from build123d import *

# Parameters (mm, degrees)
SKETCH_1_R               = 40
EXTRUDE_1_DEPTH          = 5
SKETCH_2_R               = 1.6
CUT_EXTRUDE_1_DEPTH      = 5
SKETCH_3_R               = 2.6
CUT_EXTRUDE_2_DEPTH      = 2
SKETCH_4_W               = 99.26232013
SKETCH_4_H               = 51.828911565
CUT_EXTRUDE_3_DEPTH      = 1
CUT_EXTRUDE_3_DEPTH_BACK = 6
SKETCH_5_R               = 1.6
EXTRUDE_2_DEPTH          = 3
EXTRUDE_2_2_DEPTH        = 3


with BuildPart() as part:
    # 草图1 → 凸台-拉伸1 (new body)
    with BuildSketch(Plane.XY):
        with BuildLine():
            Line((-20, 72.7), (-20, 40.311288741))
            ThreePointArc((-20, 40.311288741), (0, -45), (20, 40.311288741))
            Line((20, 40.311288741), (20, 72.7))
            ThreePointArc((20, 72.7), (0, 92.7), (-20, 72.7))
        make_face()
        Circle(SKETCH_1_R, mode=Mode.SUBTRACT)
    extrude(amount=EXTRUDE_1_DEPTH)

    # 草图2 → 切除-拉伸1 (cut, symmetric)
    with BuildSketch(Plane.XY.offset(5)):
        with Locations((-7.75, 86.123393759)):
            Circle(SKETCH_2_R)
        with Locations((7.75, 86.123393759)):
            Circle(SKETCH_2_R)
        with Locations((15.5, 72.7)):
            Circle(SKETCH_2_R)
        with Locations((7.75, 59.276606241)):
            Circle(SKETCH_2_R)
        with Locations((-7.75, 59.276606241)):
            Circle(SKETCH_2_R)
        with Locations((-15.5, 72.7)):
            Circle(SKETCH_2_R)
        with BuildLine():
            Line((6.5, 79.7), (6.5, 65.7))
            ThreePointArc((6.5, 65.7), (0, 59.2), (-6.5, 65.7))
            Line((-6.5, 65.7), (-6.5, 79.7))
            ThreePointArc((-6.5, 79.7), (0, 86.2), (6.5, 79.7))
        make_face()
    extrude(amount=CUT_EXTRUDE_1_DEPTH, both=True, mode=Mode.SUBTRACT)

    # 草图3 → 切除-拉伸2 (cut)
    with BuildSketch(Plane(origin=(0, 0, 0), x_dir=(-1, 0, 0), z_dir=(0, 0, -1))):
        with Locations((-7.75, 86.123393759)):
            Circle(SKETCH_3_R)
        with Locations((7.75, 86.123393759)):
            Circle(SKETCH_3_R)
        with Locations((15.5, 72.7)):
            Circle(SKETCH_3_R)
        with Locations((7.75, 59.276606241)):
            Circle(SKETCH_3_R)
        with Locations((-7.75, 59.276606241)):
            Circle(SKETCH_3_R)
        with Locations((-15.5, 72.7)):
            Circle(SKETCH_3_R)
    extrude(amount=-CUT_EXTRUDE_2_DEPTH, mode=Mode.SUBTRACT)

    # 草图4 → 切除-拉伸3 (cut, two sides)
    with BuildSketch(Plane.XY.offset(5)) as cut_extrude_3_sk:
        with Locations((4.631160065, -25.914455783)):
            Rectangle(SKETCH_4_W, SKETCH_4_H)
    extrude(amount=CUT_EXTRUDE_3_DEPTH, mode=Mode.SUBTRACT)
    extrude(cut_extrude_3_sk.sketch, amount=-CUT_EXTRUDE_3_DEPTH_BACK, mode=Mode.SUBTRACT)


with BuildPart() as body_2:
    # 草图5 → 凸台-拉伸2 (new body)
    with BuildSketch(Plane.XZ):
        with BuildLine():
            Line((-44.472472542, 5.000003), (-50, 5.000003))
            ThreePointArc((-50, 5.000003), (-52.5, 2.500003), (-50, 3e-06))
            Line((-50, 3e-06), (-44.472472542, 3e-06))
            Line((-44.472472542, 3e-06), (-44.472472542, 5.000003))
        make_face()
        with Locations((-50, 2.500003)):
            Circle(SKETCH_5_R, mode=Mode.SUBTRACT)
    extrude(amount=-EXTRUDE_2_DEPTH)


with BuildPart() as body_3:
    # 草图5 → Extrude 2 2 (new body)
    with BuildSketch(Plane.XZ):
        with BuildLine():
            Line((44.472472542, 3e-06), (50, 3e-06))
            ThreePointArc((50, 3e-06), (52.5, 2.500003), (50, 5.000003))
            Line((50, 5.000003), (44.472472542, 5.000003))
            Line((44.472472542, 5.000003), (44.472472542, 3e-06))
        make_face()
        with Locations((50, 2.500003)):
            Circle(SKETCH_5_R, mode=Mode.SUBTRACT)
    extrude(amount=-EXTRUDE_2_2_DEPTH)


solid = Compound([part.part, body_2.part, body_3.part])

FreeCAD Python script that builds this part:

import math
import FreeCAD as App
import Part
import Sketcher
Q = App.Units.Quantity


def add_polygon(sketch, points):
    """Adds a closed chain of lines whose ends are joined by coincident constraints."""
    first, n = sketch.GeometryCount, len(points)
    for a, b in zip(points, points[1:] + points[:1]):
        sketch.addGeometry(Part.LineSegment(App.Vector(*a, 0), App.Vector(*b, 0)), False)
    for i in range(n):
        sketch.addConstraint(Sketcher.Constraint("Coincident", first + i, 2, first + (i + 1) % n, 1))

doc = App.newDocument("Part")
params = doc.addObject("Spreadsheet::Sheet", "Params")
for row, (alias, value) in enumerate([
    ("sketch1_diameter", "80 mm"),
    ("sketch1_radius", "45 mm"),
    ("sketch1_radius2", "20 mm"),
    ("pad1_length", "5 mm"),
    ("sketch2_diameter", "3.2 mm"),
    ("sketch2_radius", "6.5 mm"),
    ("sketch2_height", "14 mm"),
    ("pocket1_length", "10 mm"),
    ("sketch3_diameter", "5.2 mm"),
    ("pocket2_length", "2 mm"),
    ("sketch5_diameter", "3.2 mm"),
    ("sketch5_radius", "2.5 mm"),
    ("pad2_length", "3 mm"),
    ("sketch6_diameter", "3.2 mm"),
    ("sketch6_radius", "2.5 mm"),
    ("pad3_length", "3 mm"),
], start=1):
    params.set(f"A{row}", alias)
    params.set(f"B{row}", "=" + value)
    params.setAlias(f"B{row}", alias)

body = doc.addObject("PartDesign::Body", "Body")

# Sketch on XY plane
sketch1 = body.newObject("Sketcher::SketchObject", "Sketch")
sketch1.AttachmentSupport = (doc.getObject("XY_Plane"), [""])
sketch1.MapMode = "FlatFace"
sketch1.addGeometry([
    Part.LineSegment(App.Vector(-20, 73, 0), App.Vector(-20, 40, 0)),  # 0
    Part.ArcOfCircle(Part.Circle(App.Vector(0, 0, 0), App.Vector(0, 0, 1), 45), math.radians(116), math.radians(424)),  # 1
    Part.LineSegment(App.Vector(20, 40, 0), App.Vector(20, 73, 0)),  # 2
    Part.ArcOfCircle(Part.Circle(App.Vector(0, 73, 0), App.Vector(0, 0, 1), 20), math.radians(0), math.radians(180)),  # 3
    Part.Circle(App.Vector(0, 0, 0), App.Vector(0, 0, 1), 40),  # 4
], False)
sketch1.addConstraint([
    Sketcher.Constraint("Coincident", 0, 2, 1, 1),
    Sketcher.Constraint("Coincident", 1, 2, 2, 1),
    Sketcher.Constraint("Tangent", 2, 2, 3, 1),
    Sketcher.Constraint("Tangent", 3, 2, 0, 1),
    Sketcher.Constraint("Vertical", 0),
    Sketcher.Constraint("Vertical", 2),
    Sketcher.Constraint("Coincident", 1, 3, -1, 1),
    Sketcher.Constraint("Coincident", 4, 3, -1, 1),
    Sketcher.Constraint("PointOnObject", 3, 3, -2),
    Sketcher.Constraint("Diameter", 4, Q("80 mm")),
    Sketcher.Constraint("Radius", 1, Q("45 mm")),
    Sketcher.Constraint("Radius", 3, Q("20 mm")),
    Sketcher.Constraint("DistanceY", -1, 1, 3, 3, Q("72.7 mm")),
])
sketch1.setExpression("Constraints[9]", "Params.sketch1_diameter")
sketch1.setExpression("Constraints[10]", "Params.sketch1_radius")
sketch1.setExpression("Constraints[11]", "Params.sketch1_radius2")
pad1 = body.newObject("PartDesign::Pad", "Pad")
pad1.Profile = sketch1
pad1.setExpression("Length", "Params.pad1_length")

# Sketch on XY plane
sketch2 = body.newObject("Sketcher::SketchObject", "Sketch001")
sketch2.AttachmentSupport = (doc.getObject("XY_Plane"), [""])
sketch2.MapMode = "FlatFace"
sketch2.AttachmentOffset = App.Placement(App.Vector(0, 0, 5), App.Rotation())
sketch2.addGeometry([
    Part.Circle(App.Vector(-7.8, 86.1, 0), App.Vector(0, 0, 1), 1.6),  # 0
    Part.Circle(App.Vector(7.8, 86.1, 0), App.Vector(0, 0, 1), 1.6),  # 1
    Part.Circle(App.Vector(15.5, 72.7, 0), App.Vector(0, 0, 1), 1.6),  # 2
    Part.Circle(App.Vector(7.8, 59.3, 0), App.Vector(0, 0, 1), 1.6),  # 3
    Part.Circle(App.Vector(-7.8, 59.3, 0), App.Vector(0, 0, 1), 1.6),  # 4
    Part.Circle(App.Vector(-15.5, 72.7, 0), App.Vector(0, 0, 1), 1.6),  # 5
    Part.LineSegment(App.Vector(6.5, 65.7, 0), App.Vector(6.5, 79.7, 0)),  # 6
    Part.ArcOfCircle(Part.Circle(App.Vector(0, 79.7, 0), App.Vector(0, 0, 1), 6.5), math.radians(0), math.radians(180)),  # 7
    Part.LineSegment(App.Vector(-6.5, 79.7, 0), App.Vector(-6.5, 65.7, 0)),  # 8
    Part.ArcOfCircle(Part.Circle(App.Vector(0, 65.7, 0), App.Vector(0, 0, 1), 6.5), math.radians(180), math.radians(360)),  # 9
], False)
sketch2.addConstraint([
    Sketcher.Constraint("Tangent", 6, 2, 7, 1),
    Sketcher.Constraint("Tangent", 7, 2, 8, 1),
    Sketcher.Constraint("Tangent", 8, 2, 9, 1),
    Sketcher.Constraint("Tangent", 9, 2, 6, 1),
    Sketcher.Constraint("Vertical", 6),
    Sketcher.Constraint("Vertical", 8),
    Sketcher.Constraint("Equal", 0, 1),
    Sketcher.Constraint("Equal", 1, 2),
    Sketcher.Constraint("Equal", 2, 3),
    Sketcher.Constraint("Equal", 3, 4),
    Sketcher.Constraint("Equal", 4, 5),
    Sketcher.Constraint("Symmetric", 0, 3, 1, 3, -2),
    Sketcher.Constraint("Symmetric", 3, 3, 4, 3, -2),
    Sketcher.Constraint("Symmetric", 2, 3, 5, 3, -2),
    Sketcher.Constraint("PointOnObject", 7, 3, -2),
    Sketcher.Constraint("Vertical", 1, 3, 3, 3),
    Sketcher.Constraint("Diameter", 0, Q("3.2 mm")),
    Sketcher.Constraint("Radius", 7, Q("6.5 mm")),
    Sketcher.Constraint("DistanceY", 6, 1, 6, 2, Q("14 mm")),
    Sketcher.Constraint("DistanceX", 5, 3, 2, 3, Q("31 mm")),
    Sketcher.Constraint("DistanceY", 2, 3, 7, 3, Q("7 mm")),
    Sketcher.Constraint("DistanceY", -1, 1, 2, 3, Q("72.7 mm")),
    Sketcher.Constraint("DistanceX", 0, 3, 1, 3, Q("15.5 mm")),
    Sketcher.Constraint("DistanceY", -1, 1, 0, 3, Q("86.123394 mm")),
    Sketcher.Constraint("DistanceY", -1, 1, 3, 3, Q("59.276606 mm")),
])
sketch2.setExpression("Constraints[16]", "Params.sketch2_diameter")
sketch2.setExpression("Constraints[17]", "Params.sketch2_radius")
sketch2.setExpression("Constraints[18]", "Params.sketch2_height")
pocket1 = body.newObject("PartDesign::Pocket", "Pocket")
pocket1.Profile = sketch2
pocket1.setExpression("Length", "Params.pocket1_length")
pocket1.Midplane = True

# Sketch on XY plane
sketch3 = body.newObject("Sketcher::SketchObject", "Sketch002")
sketch3.AttachmentSupport = (doc.getObject("XY_Plane"), [""])
sketch3.MapMode = "FlatFace"
sketch3.addGeometry([
    Part.Circle(App.Vector(7.8, 86.1, 0), App.Vector(0, 0, 1), 2.6),  # 0
    Part.Circle(App.Vector(-7.8, 86.1, 0), App.Vector(0, 0, 1), 2.6),  # 1
    Part.Circle(App.Vector(-15.5, 72.7, 0), App.Vector(0, 0, 1), 2.6),  # 2
    Part.Circle(App.Vector(-7.8, 59.3, 0), App.Vector(0, 0, 1), 2.6),  # 3
    Part.Circle(App.Vector(7.8, 59.3, 0), App.Vector(0, 0, 1), 2.6),  # 4
    Part.Circle(App.Vector(15.5, 72.7, 0), App.Vector(0, 0, 1), 2.6),  # 5
], False)
sketch3.addConstraint([
    Sketcher.Constraint("Equal", 0, 1),
    Sketcher.Constraint("Equal", 1, 2),
    Sketcher.Constraint("Equal", 2, 3),
    Sketcher.Constraint("Equal", 3, 4),
    Sketcher.Constraint("Equal", 4, 5),
    Sketcher.Constraint("Symmetric", 0, 3, 1, 3, -2),
    Sketcher.Constraint("Symmetric", 3, 3, 4, 3, -2),
    Sketcher.Constraint("Symmetric", 2, 3, 5, 3, -2),
    Sketcher.Constraint("Vertical", 1, 3, 3, 3),
    Sketcher.Constraint("Diameter", 0, Q("5.2 mm")),
    Sketcher.Constraint("DistanceX", 2, 3, 5, 3, Q("31 mm")),
    Sketcher.Constraint("DistanceY", -1, 1, 2, 3, Q("72.7 mm")),
    Sketcher.Constraint("DistanceX", 1, 3, 0, 3, Q("15.5 mm")),
    Sketcher.Constraint("DistanceY", -1, 1, 0, 3, Q("86.123394 mm")),
    Sketcher.Constraint("DistanceY", -1, 1, 3, 3, Q("59.276606 mm")),
])
sketch3.setExpression("Constraints[9]", "Params.sketch3_diameter")
pocket2 = body.newObject("PartDesign::Pocket", "Pocket001")
pocket2.Profile = sketch3
pocket2.setExpression("Length", "Params.pocket2_length")
pocket2.Reversed = True

# Sketch on XY plane
sketch4 = body.newObject("Sketcher::SketchObject", "Sketch003")
sketch4.AttachmentSupport = (doc.getObject("XY_Plane"), [""])
sketch4.MapMode = "FlatFace"
sketch4.AttachmentOffset = App.Placement(App.Vector(0, 0, 5), App.Rotation())
add_polygon(sketch4, [(-45, 0), (-45, -52), (54, -52), (54, 0)])  # lines 0-3
sketch4.addConstraint([
    Sketcher.Constraint("Vertical", 0),
    Sketcher.Constraint("Horizontal", 1),
    Sketcher.Constraint("Vertical", 2),
    Sketcher.Constraint("Horizontal", 3),
    Sketcher.Constraint("PointOnObject", 2, 2, -1),
    Sketcher.Constraint("DistanceX", 0, 2, -1, 1, Q("45 mm")),
    Sketcher.Constraint("DistanceX", 1, 1, 1, 2, Q("99.26232 mm")),
    Sketcher.Constraint("DistanceY", 0, 2, 0, 1, Q("51.828912 mm")),
])
pocket3 = body.newObject("PartDesign::Pocket", "Pocket002")
pocket3.Profile = sketch4
pocket3.Type = "ThroughAll"
pocket3.Midplane = True
body2 = doc.addObject("PartDesign::Body", "Body001")

# Sketch on XZ plane
sketch5 = body2.newObject("Sketcher::SketchObject", "Sketch004")
sketch5.AttachmentSupport = (doc.getObject("XZ_Plane001"), [""])
sketch5.MapMode = "FlatFace"
sketch5.addGeometry([
    Part.LineSegment(App.Vector(-44.5, 5, 0), App.Vector(-50, 5, 0)),  # 0
    Part.ArcOfCircle(Part.Circle(App.Vector(-50, 2.5, 0), App.Vector(0, 0, 1), 2.5), math.radians(90), math.radians(270)),  # 1
    Part.LineSegment(App.Vector(-50, 0, 0), App.Vector(-44.5, 0, 0)),  # 2
    Part.LineSegment(App.Vector(-44.5, 0, 0), App.Vector(-44.5, 5, 0)),  # 3
    Part.Circle(App.Vector(-50, 2.5, 0), App.Vector(0, 0, 1), 1.6),  # 4
], False)
sketch5.addConstraint([
    Sketcher.Constraint("Tangent", 0, 2, 1, 1),
    Sketcher.Constraint("Tangent", 1, 2, 2, 1),
    Sketcher.Constraint("Coincident", 2, 2, 3, 1),
    Sketcher.Constraint("Coincident", 3, 2, 0, 1),
    Sketcher.Constraint("Horizontal", 0),
    Sketcher.Constraint("Horizontal", 2),
    Sketcher.Constraint("Vertical", 3),
    Sketcher.Constraint("Coincident", 4, 3, 1, 3),
    Sketcher.Constraint("Diameter", 4, Q("3.2 mm")),
    Sketcher.Constraint("Radius", 1, Q("2.5 mm")),
    Sketcher.Constraint("DistanceX", 1, 3, -1, 1, Q("50 mm")),
    Sketcher.Constraint("DistanceX", 0, 2, 0, 1, Q("5.527527 mm")),
    Sketcher.Constraint("DistanceY", -1, 1, 1, 3, Q("2.500003 mm")),
])
sketch5.setExpression("Constraints[8]", "Params.sketch5_diameter")
sketch5.setExpression("Constraints[9]", "Params.sketch5_radius")
pad2 = body2.newObject("PartDesign::Pad", "Pad001")
pad2.Profile = sketch5
pad2.setExpression("Length", "Params.pad2_length")
pad2.Reversed = True
body3 = doc.addObject("PartDesign::Body", "Body002")

# Sketch on XZ plane
sketch6 = body3.newObject("Sketcher::SketchObject", "Sketch005")
sketch6.AttachmentSupport = (doc.getObject("XZ_Plane002"), [""])
sketch6.MapMode = "FlatFace"
sketch6.addGeometry([
    Part.LineSegment(App.Vector(44.5, 0, 0), App.Vector(50, 0, 0)),  # 0
    Part.ArcOfCircle(Part.Circle(App.Vector(50, 2.5, 0), App.Vector(0, 0, 1), 2.5), math.radians(-90), math.radians(90)),  # 1
    Part.LineSegment(App.Vector(50, 5, 0), App.Vector(44.5, 5, 0)),  # 2
    Part.LineSegment(App.Vector(44.5, 5, 0), App.Vector(44.5, 0, 0)),  # 3
    Part.Circle(App.Vector(50, 2.5, 0), App.Vector(0, 0, 1), 1.6),  # 4
], False)
sketch6.addConstraint([
    Sketcher.Constraint("Tangent", 0, 2, 1, 1),
    Sketcher.Constraint("Tangent", 1, 2, 2, 1),
    Sketcher.Constraint("Coincident", 2, 2, 3, 1),
    Sketcher.Constraint("Coincident", 3, 2, 0, 1),
    Sketcher.Constraint("Horizontal", 0),
    Sketcher.Constraint("Horizontal", 2),
    Sketcher.Constraint("Vertical", 3),
    Sketcher.Constraint("Coincident", 4, 3, 1, 3),
    Sketcher.Constraint("Diameter", 4, Q("3.2 mm")),
    Sketcher.Constraint("Radius", 1, Q("2.5 mm")),
    Sketcher.Constraint("DistanceX", -1, 1, 1, 3, Q("50 mm")),
    Sketcher.Constraint("DistanceX", 0, 1, 0, 2, Q("5.527527 mm")),
    Sketcher.Constraint("DistanceY", -1, 1, 1, 3, Q("2.500003 mm")),
])
sketch6.setExpression("Constraints[8]", "Params.sketch6_diameter")
sketch6.setExpression("Constraints[9]", "Params.sketch6_radius")
pad3 = body3.newObject("PartDesign::Pad", "Pad002")
pad3.Profile = sketch6
pad3.setExpression("Length", "Params.pad3_length")
pad3.Reversed = True

doc.recompute()
